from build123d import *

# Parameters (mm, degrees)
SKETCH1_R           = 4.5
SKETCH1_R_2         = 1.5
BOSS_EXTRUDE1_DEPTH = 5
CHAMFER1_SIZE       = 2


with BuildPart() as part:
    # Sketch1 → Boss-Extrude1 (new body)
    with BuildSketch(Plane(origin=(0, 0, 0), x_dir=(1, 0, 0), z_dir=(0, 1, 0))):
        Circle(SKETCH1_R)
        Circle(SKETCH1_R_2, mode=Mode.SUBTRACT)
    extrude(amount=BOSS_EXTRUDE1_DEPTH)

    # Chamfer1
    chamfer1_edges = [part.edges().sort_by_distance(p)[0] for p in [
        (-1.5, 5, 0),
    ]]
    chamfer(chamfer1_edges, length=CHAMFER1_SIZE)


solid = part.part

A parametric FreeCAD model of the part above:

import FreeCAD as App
import Part
import Sketcher

V = App.Vector


def edges_at(feature, points):
    """Names of the edges that pass closest to the given points."""
    edges = feature.Shape.Edges
    near = lambda p: min(range(len(edges)), key=lambda i: edges[i].distToShape(Part.Vertex(*p))[0])
    return sorted({f"Edge{near(p) + 1}" for p in points})

doc = App.newDocument("Part")
body = doc.addObject("PartDesign::Body", "Body")

# Sketch on XZ plane
sketch1 = body.newObject("Sketcher::SketchObject", "Sketch")
sketch1.AttachmentSupport = (doc.getObject("XZ_Plane"), [""])
sketch1.MapMode = "FlatFace"
sketch1.addGeometry(Part.Circle(V(0, 0, 0), V(0, 0, 1), 4.5), False)
sketch1.addGeometry(Part.Circle(V(0, 0, 0), V(0, 0, 1), 1.5), False)
sketch1.addConstraint(Sketcher.Constraint("Coincident", 0, 3, -1, 1))
sketch1.addConstraint(Sketcher.Constraint("Coincident", 1, 3, -1, 1))
sketch1.addConstraint(Sketcher.Constraint("Diameter", 0, 9.0))
sketch1.addConstraint(Sketcher.Constraint("Diameter", 1, 3.0))
pad1 = body.newObject("PartDesign::Pad", "Pad")
pad1.Profile = sketch1
pad1.Length = 5
pad1.Reversed = True
doc.recompute()

chamfer = body.newObject("PartDesign::Chamfer", "Chamfer")
chamfer.Base = (pad1, edges_at(pad1, [(-1.5, 5, 0)]))
chamfer.Size = 2

doc.recompute()
